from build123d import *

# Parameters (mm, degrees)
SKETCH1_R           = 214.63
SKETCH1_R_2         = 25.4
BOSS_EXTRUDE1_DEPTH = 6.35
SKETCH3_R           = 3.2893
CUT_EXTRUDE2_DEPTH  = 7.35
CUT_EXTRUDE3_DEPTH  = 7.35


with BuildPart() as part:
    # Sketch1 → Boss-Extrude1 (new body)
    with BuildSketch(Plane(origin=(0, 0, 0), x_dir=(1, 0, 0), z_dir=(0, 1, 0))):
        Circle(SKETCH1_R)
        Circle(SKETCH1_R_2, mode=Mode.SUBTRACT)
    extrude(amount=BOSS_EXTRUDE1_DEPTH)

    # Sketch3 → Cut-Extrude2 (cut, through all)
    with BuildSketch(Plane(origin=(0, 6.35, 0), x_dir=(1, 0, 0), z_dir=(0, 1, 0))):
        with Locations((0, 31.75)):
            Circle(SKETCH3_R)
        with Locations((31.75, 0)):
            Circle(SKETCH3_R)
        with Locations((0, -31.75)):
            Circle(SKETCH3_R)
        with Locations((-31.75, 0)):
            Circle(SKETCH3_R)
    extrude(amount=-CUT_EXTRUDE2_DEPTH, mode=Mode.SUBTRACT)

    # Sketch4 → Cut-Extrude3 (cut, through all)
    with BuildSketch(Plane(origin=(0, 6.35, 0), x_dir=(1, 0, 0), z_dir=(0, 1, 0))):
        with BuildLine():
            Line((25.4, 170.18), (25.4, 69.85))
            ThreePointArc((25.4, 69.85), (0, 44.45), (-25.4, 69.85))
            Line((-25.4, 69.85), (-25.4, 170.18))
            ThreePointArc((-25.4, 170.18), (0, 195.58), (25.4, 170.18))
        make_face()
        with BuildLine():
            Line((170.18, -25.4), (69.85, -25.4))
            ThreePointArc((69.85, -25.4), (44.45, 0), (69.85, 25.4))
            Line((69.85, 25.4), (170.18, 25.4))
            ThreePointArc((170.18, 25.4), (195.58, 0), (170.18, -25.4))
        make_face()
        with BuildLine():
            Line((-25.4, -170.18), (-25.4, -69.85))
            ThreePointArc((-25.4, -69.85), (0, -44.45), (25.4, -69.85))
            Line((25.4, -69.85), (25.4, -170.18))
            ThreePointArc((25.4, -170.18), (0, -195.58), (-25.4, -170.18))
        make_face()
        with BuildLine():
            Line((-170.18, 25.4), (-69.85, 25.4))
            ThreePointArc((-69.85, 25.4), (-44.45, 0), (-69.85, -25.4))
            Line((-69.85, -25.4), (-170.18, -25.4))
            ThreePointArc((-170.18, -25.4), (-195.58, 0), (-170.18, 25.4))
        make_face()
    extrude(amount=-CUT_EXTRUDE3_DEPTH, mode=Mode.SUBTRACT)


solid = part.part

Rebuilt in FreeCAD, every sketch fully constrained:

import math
import FreeCAD as App
import Part
import Sketcher
Q = App.Units.Quantity

doc = App.newDocument("Part")
params = doc.addObject("Spreadsheet::Sheet", "Params")
for row, (alias, value) in enumerate([
    ("sketch1_diameter", "2 in"),
    ("sketch1_diameter2", "16.9 in"),
    ("pad1_length", "0.25 in"),
    ("sketch2_diameter", "0.259 in"),
    ("sketch3_radius", "1 in"),
    ("sketch3_width", "3.95 in"),
], start=1):
    params.set(f"A{row}", alias)
    params.set(f"B{row}", "=" + value)
    params.setAlias(f"B{row}", alias)

body = doc.addObject("PartDesign::Body", "Body")

sketch1 = body.newObject("Sketcher::SketchObject", "Sketch")
sketch1.AttachmentSupport = (doc.getObject("XZ_Plane"), [""])
sketch1.MapMode = "FlatFace"
sketch1.addGeometry([
    Part.Circle(App.Vector(0, 0, 0), App.Vector(0, 0, 1), 214.63),
    Part.Circle(App.Vector(0, 0, 0), App.Vector(0, 0, 1), 25.4),
], False)
sketch1.addConstraint([
    Sketcher.Constraint("Coincident", 0, 3, -1, 1),
    Sketcher.Constraint("Coincident", 1, 3, -1, 1),
    Sketcher.Constraint("Diameter", 1, Q("2 in")),
    Sketcher.Constraint("Diameter", 0, Q("16.9 in")),
])
sketch1.setExpression("Constraints[2]", "Params.sketch1_diameter")
sketch1.setExpression("Constraints[3]", "Params.sketch1_diameter2")
pad1 = body.newObject("PartDesign::Pad", "Pad")
pad1.Profile = sketch1
pad1.setExpression("Length", "Params.pad1_length")
pad1.Reversed = True

sketch2 = body.newObject("Sketcher::SketchObject", "Sketch001")
sketch2.AttachmentSupport = (doc.getObject("XZ_Plane"), [""])
sketch2.MapMode = "FlatFace"
sketch2.AttachmentOffset = App.Placement(App.Vector(0, 0, -0.25 * 25.4), App.Rotation())
sketch2.addGeometry([
    Part.Circle(App.Vector(0, -31.75, 0), App.Vector(0, 0, 1), 3.2893),
    Part.Circle(App.Vector(31.75, 0, 0), App.Vector(0, 0, 1), 3.2893),
    Part.Circle(App.Vector(0, 31.75, 0), App.Vector(0, 0, 1), 3.2893),
    Part.Circle(App.Vector(-31.75, 0, 0), App.Vector(0, 0, 1), 3.2893),
], False)
sketch2.addConstraint([
    Sketcher.Constraint("Equal", 0, 1),
    Sketcher.Constraint("Equal", 1, 2),
    Sketcher.Constraint("Equal", 2, 3),
    Sketcher.Constraint("Symmetric", 0, 3, 2, 3, -1, 1),
    Sketcher.Constraint("Symmetric", 1, 3, 3, 3, -1, 1),
    Sketcher.Constraint("PointOnObject", 0, 3, -2),
    Sketcher.Constraint("PointOnObject", 1, 3, -1),
    Sketcher.Constraint("Diameter", 0, Q("0.259 in")),
    Sketcher.Constraint("DistanceY", 0, 3, 2, 3, Q("2.5 in")),
    Sketcher.Constraint("DistanceX", 3, 3, 1, 3, Q("2.5 in")),
])
sketch2.setExpression("Constraints[7]", "Params.sketch2_diameter")
pocket1 = body.newObject("PartDesign::Pocket", "Pocket")
pocket1.Profile = sketch2
pocket1.Type = "ThroughAll"
pocket1.Reversed = True

sketch3 = body.newObject("Sketcher::SketchObject", "Sketch002")
sketch3.AttachmentSupport = (doc.getObject("XZ_Plane"), [""])
sketch3.MapMode = "FlatFace"
sketch3.AttachmentOffset = App.Placement(App.Vector(0, 0, -0.25 * 25.4), App.Rotation())
sketch3.addGeometry([
    Part.LineSegment(App.Vector(25.4, -69.85, 0), App.Vector(25.4, -170.18, 0)),
    Part.ArcOfCircle(Part.Circle(App.Vector(0, -170.18, 0), App.Vector(0, 0, 1), 25.4), math.radians(180), math.radians(360)),
    Part.LineSegment(App.Vector(-25.4, -170.18, 0), App.Vector(-25.4, -69.85, 0)),
    Part.ArcOfCircle(Part.Circle(App.Vector(0, -69.85, 0), App.Vector(0, 0, 1), 25.4), math.radians(0), math.radians(180)),
    Part.LineSegment(App.Vector(69.85, 25.4, 0), App.Vector(170.18, 25.4, 0)),
    Part.ArcOfCircle(Part.Circle(App.Vector(170.18, 0, 0), App.Vector(0, 0, 1), 25.4), math.radians(-90), math.radians(90)),
    Part.LineSegment(App.Vector(170.18, -25.4, 0), App.Vector(69.85, -25.4, 0)),
    Part.ArcOfCircle(Part.Circle(App.Vector(69.85, 0, 0), App.Vector(0, 0, 1), 25.4), math.radians(90), math.radians(270)),
    Part.LineSegment(App.Vector(-25.4, 69.85, 0), App.Vector(-25.4, 170.18, 0)),
    Part.ArcOfCircle(Part.Circle(App.Vector(0, 170.18, 0), App.Vector(0, 0, 1), 25.4), math.radians(0), math.radians(180)),
    Part.LineSegment(App.Vector(25.4, 170.18, 0), App.Vector(25.4, 69.85, 0)),
    Part.ArcOfCircle(Part.Circle(App.Vector(0, 69.85, 0), App.Vector(0, 0, 1), 25.4), math.radians(180), math.radians(360)),
    Part.LineSegment(App.Vector(-69.85, -25.4, 0), App.Vector(-170.18, -25.4, 0)),
    Part.ArcOfCircle(Part.Circle(App.Vector(-170.18, 0, 0), App.Vector(0, 0, 1), 25.4), math.radians(90), math.radians(270)),
    Part.LineSegment(App.Vector(-170.18, 25.4, 0), App.Vector(-69.85, 25.4, 0)),
    Part.ArcOfCircle(Part.Circle(App.Vector(-69.85, 0, 0), App.Vector(0, 0, 1), 25.4), math.radians(-90), math.radians(90)),
], False)
sketch3.addConstraint([
    Sketcher.Constraint("Tangent", 0, 2, 1, 2),
    Sketcher.Constraint("Tangent", 1, 1, 2, 1),
    Sketcher.Constraint("Tangent", 2, 2, 3, 2),
    Sketcher.Constraint("Tangent", 3, 1, 0, 1),
    Sketcher.Constraint("Tangent", 4, 2, 5, 2),
    Sketcher.Constraint("Tangent", 5, 1, 6, 1),
    Sketcher.Constraint("Tangent", 6, 2, 7, 2),
    Sketcher.Constraint("Tangent", 7, 1, 4, 1),
    Sketcher.Constraint("Tangent", 8, 2, 9, 2),
    Sketcher.Constraint("Tangent", 9, 1, 10, 1),
    Sketcher.Constraint("Tangent", 10, 2, 11, 2),
    Sketcher.Constraint("Tangent", 11, 1, 8, 1),
    Sketcher.Constraint("Tangent", 12, 2, 13, 2),
    Sketcher.Constraint("Tangent", 13, 1, 14, 1),
    Sketcher.Constraint("Tangent", 14, 2, 15, 2),
    Sketcher.Constraint("Tangent", 15, 1, 12, 1),
    Sketcher.Constraint("Vertical", 0),
    Sketcher.Constraint("Vertical", 2),
    Sketcher.Constraint("Horizontal", 4),
    Sketcher.Constraint("Horizontal", 6),
    Sketcher.Constraint("Vertical", 8),
    Sketcher.Constraint("Vertical", 10),
    Sketcher.Constraint("Horizontal", 12),
    Sketcher.Constraint("Horizontal", 14),
    Sketcher.Constraint("Equal", 3, 5),
    Sketcher.Constraint("Equal", 7, 9),
    Sketcher.Constraint("Equal", 11, 13),
    Sketcher.Constraint("Symmetric", 1, 3, 9, 3, -1, 1),
    Sketcher.Constraint("Symmetric", 5, 3, 13, 3, -1, 1),
    Sketcher.Constraint("Symmetric", 7, 3, 15, 3, -2),
    Sketcher.Constraint("Symmetric", 3, 3, 11, 3, -1),
    Sketcher.Constraint("Equal", 14, 0),
    Sketcher.Constraint("Radius", 1, Q("1 in")),
    Sketcher.Constraint("DistanceX", 4, 1, 4, 2, Q("3.95 in")),
    Sketcher.Constraint("DistanceY", 1, 3, -1, 1, Q("6.7 in")),
    Sketcher.Constraint("DistanceX", -1, 1, 5, 3, Q("6.7 in")),
])
sketch3.setExpression("Constraints[32]", "Params.sketch3_radius")
sketch3.setExpression("Constraints[33]", "Params.sketch3_width")
pocket2 = body.newObject("PartDesign::Pocket", "Pocket001")
pocket2.Profile = sketch3
pocket2.Type = "ThroughAll"
pocket2.Reversed = True

doc.recompute()
